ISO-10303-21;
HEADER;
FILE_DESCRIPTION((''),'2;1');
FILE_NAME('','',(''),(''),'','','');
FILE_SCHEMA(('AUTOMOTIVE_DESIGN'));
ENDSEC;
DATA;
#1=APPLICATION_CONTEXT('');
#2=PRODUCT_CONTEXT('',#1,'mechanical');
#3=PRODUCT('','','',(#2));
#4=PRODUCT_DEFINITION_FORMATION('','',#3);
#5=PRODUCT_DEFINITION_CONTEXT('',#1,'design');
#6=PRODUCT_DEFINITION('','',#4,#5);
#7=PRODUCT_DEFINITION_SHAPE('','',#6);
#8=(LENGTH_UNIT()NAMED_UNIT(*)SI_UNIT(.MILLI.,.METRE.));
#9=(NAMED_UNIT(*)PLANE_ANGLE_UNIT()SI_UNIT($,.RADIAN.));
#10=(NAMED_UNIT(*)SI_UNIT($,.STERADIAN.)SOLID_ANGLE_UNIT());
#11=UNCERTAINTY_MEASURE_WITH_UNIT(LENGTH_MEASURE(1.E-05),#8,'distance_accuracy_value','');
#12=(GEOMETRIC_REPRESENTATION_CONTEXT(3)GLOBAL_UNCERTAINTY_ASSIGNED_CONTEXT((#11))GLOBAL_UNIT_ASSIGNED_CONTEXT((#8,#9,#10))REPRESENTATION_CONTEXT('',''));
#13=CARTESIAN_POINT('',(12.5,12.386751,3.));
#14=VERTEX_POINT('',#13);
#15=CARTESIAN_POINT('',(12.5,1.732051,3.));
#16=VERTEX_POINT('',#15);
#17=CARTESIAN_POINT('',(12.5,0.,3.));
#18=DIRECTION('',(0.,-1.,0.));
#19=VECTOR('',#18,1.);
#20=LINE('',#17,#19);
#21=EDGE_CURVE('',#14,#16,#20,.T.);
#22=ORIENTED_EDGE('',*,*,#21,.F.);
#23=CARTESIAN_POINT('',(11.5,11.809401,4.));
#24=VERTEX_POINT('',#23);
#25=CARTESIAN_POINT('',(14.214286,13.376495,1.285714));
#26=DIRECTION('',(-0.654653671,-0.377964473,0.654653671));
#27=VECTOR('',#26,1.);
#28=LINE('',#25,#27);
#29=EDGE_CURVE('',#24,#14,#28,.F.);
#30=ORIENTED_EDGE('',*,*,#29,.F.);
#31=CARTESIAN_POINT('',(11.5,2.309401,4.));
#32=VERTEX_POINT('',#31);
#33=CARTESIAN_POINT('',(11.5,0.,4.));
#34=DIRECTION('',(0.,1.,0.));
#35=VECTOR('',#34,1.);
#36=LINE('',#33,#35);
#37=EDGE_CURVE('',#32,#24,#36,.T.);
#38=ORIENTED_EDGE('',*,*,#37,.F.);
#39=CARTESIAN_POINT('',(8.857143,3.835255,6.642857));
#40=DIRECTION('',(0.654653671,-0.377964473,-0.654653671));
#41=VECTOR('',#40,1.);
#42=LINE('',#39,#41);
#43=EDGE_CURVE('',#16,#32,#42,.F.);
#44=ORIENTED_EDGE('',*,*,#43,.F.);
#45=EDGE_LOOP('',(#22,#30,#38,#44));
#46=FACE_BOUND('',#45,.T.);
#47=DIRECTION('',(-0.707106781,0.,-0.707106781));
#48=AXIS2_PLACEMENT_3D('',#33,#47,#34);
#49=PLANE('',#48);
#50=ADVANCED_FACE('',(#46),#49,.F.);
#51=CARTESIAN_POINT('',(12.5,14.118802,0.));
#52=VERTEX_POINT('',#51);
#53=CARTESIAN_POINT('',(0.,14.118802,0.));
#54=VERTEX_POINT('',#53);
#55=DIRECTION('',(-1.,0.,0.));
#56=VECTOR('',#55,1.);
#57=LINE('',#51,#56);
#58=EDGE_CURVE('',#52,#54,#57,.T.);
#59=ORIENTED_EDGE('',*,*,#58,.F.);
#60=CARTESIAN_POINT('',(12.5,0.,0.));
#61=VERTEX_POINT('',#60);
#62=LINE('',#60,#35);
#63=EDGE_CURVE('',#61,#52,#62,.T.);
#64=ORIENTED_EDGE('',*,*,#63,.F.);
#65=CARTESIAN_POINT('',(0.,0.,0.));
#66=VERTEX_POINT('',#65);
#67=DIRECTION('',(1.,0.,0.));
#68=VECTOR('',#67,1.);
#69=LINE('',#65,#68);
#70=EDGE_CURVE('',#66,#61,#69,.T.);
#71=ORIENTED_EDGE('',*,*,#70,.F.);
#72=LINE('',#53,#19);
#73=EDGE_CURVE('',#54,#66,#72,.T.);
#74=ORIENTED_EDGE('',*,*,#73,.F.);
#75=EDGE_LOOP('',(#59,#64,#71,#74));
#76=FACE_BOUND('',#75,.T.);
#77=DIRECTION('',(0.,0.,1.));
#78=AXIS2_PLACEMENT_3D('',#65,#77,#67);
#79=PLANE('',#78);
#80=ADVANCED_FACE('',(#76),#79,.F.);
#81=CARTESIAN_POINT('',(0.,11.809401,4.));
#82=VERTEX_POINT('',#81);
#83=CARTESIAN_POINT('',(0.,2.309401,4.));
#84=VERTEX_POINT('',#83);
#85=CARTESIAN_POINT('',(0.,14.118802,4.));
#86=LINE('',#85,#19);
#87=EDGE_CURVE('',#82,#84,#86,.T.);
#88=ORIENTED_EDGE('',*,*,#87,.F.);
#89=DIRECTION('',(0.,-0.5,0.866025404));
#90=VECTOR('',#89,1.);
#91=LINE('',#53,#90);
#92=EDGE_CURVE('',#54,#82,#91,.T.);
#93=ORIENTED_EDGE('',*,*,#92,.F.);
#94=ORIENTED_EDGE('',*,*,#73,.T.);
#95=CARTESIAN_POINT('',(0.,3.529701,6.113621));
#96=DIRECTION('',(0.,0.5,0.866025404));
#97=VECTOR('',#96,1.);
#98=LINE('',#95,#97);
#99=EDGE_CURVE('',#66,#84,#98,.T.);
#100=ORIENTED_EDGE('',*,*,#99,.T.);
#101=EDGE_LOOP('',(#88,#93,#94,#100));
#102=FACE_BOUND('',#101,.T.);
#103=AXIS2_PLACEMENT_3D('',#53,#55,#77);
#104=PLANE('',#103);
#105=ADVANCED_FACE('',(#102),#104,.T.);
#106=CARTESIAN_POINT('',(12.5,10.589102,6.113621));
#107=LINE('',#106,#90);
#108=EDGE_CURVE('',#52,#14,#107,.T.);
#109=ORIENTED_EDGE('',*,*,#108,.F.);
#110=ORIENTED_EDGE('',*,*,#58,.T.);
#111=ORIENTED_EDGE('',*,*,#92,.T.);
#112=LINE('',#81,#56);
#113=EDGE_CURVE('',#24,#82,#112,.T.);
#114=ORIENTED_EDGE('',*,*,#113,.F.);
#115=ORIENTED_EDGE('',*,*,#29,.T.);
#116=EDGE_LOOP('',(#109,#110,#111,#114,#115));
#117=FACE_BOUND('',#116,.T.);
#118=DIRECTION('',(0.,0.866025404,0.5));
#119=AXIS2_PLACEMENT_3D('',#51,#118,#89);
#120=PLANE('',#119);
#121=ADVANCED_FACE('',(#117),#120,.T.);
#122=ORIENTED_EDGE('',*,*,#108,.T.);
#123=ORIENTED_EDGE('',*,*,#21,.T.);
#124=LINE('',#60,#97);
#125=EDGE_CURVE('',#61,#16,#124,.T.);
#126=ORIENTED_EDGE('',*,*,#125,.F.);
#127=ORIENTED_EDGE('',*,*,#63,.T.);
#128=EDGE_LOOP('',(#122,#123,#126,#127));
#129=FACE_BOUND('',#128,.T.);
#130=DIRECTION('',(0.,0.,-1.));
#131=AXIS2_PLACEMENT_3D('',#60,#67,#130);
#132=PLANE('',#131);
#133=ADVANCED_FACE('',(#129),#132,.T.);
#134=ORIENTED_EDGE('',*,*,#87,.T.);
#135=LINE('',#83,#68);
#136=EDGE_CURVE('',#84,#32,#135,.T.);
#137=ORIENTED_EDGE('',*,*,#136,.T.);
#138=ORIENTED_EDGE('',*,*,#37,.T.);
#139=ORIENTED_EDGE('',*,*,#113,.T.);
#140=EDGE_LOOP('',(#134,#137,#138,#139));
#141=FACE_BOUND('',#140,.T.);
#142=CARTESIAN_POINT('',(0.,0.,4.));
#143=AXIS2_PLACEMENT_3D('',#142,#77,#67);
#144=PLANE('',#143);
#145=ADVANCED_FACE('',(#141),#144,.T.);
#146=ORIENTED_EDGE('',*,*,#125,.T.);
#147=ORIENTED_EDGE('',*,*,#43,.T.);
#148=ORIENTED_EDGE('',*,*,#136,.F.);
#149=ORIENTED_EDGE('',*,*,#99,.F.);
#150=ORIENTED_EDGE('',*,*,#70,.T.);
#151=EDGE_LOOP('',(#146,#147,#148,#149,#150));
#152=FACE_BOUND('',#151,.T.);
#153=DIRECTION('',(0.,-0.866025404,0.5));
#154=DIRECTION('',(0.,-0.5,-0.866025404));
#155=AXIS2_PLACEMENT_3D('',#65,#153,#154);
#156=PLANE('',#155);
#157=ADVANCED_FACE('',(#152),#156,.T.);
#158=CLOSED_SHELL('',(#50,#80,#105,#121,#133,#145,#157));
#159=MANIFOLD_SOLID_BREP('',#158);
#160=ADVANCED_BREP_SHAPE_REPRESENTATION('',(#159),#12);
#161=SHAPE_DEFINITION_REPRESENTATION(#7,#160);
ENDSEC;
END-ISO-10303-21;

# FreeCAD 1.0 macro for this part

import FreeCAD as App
import Part
import Sketcher
from FreeCAD import Vector
Q = App.Units.Quantity


def edges_at(feature, points):
    """Names of the edges that pass closest to the given points."""
    edges = feature.Shape.Edges
    near = lambda p: min(range(len(edges)), key=lambda i: edges[i].distToShape(Part.Vertex(*p))[0])
    return sorted({f"Edge{near(p) + 1}" for p in points})


def faces_at(feature, points):
    """Names of the faces that lie closest to the given points."""
    faces = feature.Shape.Faces
    near = lambda p: min(range(len(faces)), key=lambda i: faces[i].distToShape(Part.Vertex(*p))[0])
    return sorted({f"Face{near(p) + 1}" for p in points})

doc = App.newDocument("Part")
body = doc.addObject("PartDesign::Body", "Body")

sketch1 = body.newObject("Sketcher::SketchObject", "Sketch")
sketch1.AttachmentSupport = (doc.getObject("XY_Plane"), [""])
sketch1.MapMode = "FlatFace"
sketch1.AttachmentOffset = App.Placement(Vector(0, 0, 4), App.Rotation())
sketch1.addGeometry([
    Part.LineSegment(Vector(0, 14.118802, 0), Vector(0, 0, 0)),
    Part.LineSegment(Vector(0, 0, 0), Vector(12.5, 0, 0)),
    Part.LineSegment(Vector(12.5, 0, 0), Vector(12.5, 14.118802, 0)),
    Part.LineSegment(Vector(12.5, 14.118802, 0), Vector(0, 14.118802, 0)),
], False)
sketch1.addConstraint([
    Sketcher.Constraint("Coincident", 0, 2, 1, 1),
    Sketcher.Constraint("Coincident", 1, 2, 2, 1),
    Sketcher.Constraint("Coincident", 2, 2, 3, 1),
    Sketcher.Constraint("Coincident", 3, 2, 0, 1),
    Sketcher.Constraint("Vertical", 0),
    Sketcher.Constraint("Horizontal", 1),
    Sketcher.Constraint("Vertical", 2),
    Sketcher.Constraint("Horizontal", 3),
    Sketcher.Constraint("Coincident", 0, 2, -1, 1),
    Sketcher.Constraint("DistanceX", 1, 1, 1, 2, Q("12.5 mm")),
    Sketcher.Constraint("DistanceY", 0, 2, 0, 1, Q("14.118802 mm")),
])
pad1 = body.newObject("PartDesign::Pad", "Pad")
pad1.Profile = sketch1
pad1.Length = 4
pad1.Reversed = True
doc.recompute()

draft = body.newObject("PartDesign::Draft", "Draft")
draft.Base = (pad1, faces_at(pad1, [(6.25, 14.119, 2), (6.25, 0, 2)]))
draft.NeutralPlane = (doc.getObject("XY_Plane"), [""])
draft.Angle = 30
draft.Reversed = False
doc.recompute()

chamfer = body.newObject("PartDesign::Chamfer", "Chamfer")
chamfer.Base = (draft, edges_at(draft, [(12.5, 7.059, 4)]))
chamfer.Size = 1

doc.recompute()
